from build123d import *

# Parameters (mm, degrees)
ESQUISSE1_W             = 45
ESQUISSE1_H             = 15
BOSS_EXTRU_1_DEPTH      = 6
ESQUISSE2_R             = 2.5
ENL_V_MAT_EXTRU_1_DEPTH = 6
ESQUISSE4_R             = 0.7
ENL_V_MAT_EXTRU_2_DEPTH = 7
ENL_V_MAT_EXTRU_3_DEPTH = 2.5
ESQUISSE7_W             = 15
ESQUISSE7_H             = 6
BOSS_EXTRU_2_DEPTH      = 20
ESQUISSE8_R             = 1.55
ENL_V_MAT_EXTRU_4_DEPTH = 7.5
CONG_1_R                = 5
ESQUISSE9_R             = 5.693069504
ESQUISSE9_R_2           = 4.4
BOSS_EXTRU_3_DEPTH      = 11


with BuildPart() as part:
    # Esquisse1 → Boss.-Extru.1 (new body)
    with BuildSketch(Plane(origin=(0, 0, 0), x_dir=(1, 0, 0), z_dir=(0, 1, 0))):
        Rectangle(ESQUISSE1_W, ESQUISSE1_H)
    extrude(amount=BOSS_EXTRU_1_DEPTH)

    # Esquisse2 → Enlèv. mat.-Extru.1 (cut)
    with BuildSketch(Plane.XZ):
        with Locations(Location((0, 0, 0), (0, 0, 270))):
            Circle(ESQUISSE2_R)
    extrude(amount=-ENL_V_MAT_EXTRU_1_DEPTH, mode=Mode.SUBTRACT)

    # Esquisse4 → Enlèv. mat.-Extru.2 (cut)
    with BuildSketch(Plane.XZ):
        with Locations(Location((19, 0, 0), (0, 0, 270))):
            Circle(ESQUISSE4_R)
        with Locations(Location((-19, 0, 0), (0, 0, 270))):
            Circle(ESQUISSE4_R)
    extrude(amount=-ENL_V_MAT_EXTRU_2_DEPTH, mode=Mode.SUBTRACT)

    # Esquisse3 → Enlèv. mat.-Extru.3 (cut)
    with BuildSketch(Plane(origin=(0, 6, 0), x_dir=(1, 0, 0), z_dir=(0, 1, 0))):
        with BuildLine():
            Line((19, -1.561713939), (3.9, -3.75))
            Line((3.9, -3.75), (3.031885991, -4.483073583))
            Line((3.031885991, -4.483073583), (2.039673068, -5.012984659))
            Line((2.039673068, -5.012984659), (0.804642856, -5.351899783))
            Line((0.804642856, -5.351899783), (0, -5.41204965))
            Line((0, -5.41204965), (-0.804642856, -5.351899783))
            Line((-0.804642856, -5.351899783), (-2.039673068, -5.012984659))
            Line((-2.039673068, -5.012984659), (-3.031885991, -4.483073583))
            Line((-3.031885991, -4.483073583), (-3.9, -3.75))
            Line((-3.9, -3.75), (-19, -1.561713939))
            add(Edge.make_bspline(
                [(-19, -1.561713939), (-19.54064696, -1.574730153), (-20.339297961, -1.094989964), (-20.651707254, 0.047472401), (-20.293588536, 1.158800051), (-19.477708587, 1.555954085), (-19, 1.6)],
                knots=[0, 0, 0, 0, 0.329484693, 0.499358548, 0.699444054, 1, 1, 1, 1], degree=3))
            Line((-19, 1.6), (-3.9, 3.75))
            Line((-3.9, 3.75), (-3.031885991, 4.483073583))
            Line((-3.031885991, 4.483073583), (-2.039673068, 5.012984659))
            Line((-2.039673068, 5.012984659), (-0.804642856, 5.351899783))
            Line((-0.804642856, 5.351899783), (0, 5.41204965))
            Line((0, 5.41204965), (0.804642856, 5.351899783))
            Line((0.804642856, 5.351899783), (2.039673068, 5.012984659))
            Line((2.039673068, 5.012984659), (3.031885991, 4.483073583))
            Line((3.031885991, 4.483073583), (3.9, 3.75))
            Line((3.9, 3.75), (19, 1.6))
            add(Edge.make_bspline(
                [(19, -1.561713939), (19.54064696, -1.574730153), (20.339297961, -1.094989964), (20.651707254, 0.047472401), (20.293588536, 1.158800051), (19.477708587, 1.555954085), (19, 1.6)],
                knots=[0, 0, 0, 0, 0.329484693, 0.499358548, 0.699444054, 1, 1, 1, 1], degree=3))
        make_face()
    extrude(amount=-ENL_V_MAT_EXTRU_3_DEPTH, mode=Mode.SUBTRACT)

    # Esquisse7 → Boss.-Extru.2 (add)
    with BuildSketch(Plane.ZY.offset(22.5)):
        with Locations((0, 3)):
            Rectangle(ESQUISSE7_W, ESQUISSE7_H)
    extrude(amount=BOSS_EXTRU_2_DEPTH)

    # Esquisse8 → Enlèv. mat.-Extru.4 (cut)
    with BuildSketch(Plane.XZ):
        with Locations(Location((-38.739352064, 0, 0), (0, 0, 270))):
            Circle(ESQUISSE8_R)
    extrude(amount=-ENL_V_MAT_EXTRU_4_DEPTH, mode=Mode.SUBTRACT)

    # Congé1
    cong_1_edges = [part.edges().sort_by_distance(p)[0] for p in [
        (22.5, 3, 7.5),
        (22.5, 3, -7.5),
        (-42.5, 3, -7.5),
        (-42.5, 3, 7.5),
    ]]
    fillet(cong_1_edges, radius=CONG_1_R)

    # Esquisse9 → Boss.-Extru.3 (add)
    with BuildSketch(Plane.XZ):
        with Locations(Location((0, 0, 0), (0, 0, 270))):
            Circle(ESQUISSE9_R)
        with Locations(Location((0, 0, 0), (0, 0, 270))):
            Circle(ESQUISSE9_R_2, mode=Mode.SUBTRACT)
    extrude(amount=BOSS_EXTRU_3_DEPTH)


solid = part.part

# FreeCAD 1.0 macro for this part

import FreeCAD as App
import Part
import Sketcher
Q = App.Units.Quantity


def edges_at(feature, points):
    """Names of the edges that pass closest to the given points."""
    edges = feature.Shape.Edges
    near = lambda p: min(range(len(edges)), key=lambda i: edges[i].distToShape(Part.Vertex(*p))[0])
    return sorted({f"Edge{near(p) + 1}" for p in points})

doc = App.newDocument("Part")
params = doc.addObject("Spreadsheet::Sheet", "Params")
for row, (alias, value) in enumerate([
    ("sketch1_width", "45 mm"),
    ("sketch1_height", "15 mm"),
    ("pad1_length", "6 mm"),
    ("sketch2_diameter", "5 mm"),
    ("pocket1_length", "6 mm"),
    ("sketch3_diameter", "1.4 mm"),
    ("pocket2_length", "7 mm"),
    ("pocket3_length", "2.5 mm"),
    ("sketch5_width", "6 mm"),
    ("sketch5_height", "15 mm"),
    ("pad2_length", "20 mm"),
    ("sketch6_diameter", "3.1 mm"),
    ("pocket4_length", "7.5 mm"),
    ("fillet_radius", "5 mm"),
    ("sketch7_diameter", "8.8 mm"),
    ("pad3_length", "11 mm"),
], start=1):
    params.set(f"A{row}", alias)
    params.set(f"B{row}", "=" + value)
    params.setAlias(f"B{row}", alias)

body = doc.addObject("PartDesign::Body", "Body")

sketch1 = body.newObject("Sketcher::SketchObject", "Sketch")
sketch1.AttachmentSupport = (doc.getObject("XZ_Plane"), [""])
sketch1.MapMode = "FlatFace"
sketch1.addGeometry(Part.LineSegment(App.Vector(-22, -8, 0), App.Vector(-22, 8, 0)), False)
sketch1.addGeometry(Part.LineSegment(App.Vector(-22, 8, 0), App.Vector(22, 8, 0)), False)
sketch1.addGeometry(Part.LineSegment(App.Vector(22, 8, 0), App.Vector(22, -8, 0)), False)
sketch1.addGeometry(Part.LineSegment(App.Vector(22, -8, 0), App.Vector(-22, -8, 0)), False)
sketch1.addConstraint(Sketcher.Constraint("Coincident", 0, 2, 1, 1))
sketch1.addConstraint(Sketcher.Constraint("Coincident", 1, 2, 2, 1))
sketch1.addConstraint(Sketcher.Constraint("Coincident", 2, 2, 3, 1))
sketch1.addConstraint(Sketcher.Constraint("Coincident", 3, 2, 0, 1))
sketch1.addConstraint(Sketcher.Constraint("Vertical", 0))
sketch1.addConstraint(Sketcher.Constraint("Horizontal", 1))
sketch1.addConstraint(Sketcher.Constraint("Vertical", 2))
sketch1.addConstraint(Sketcher.Constraint("Horizontal", 3))
sketch1.addConstraint(Sketcher.Constraint("Symmetric", 0, 2, 2, 2, -1, 1))
sketch1.addConstraint(Sketcher.Constraint("DistanceX", 1, 1, 1, 2, Q("45 mm")))
sketch1.addConstraint(Sketcher.Constraint("DistanceY", 0, 1, 0, 2, Q("15 mm")))
sketch1.setExpression("Constraints[9]", "Params.sketch1_width")
sketch1.setExpression("Constraints[10]", "Params.sketch1_height")
pad1 = body.newObject("PartDesign::Pad", "Pad")
pad1.Profile = sketch1
pad1.setExpression("Length", "Params.pad1_length")
pad1.Reversed = True

sketch2 = body.newObject("Sketcher::SketchObject", "Sketch001")
sketch2.AttachmentSupport = (doc.getObject("XZ_Plane"), [""])
sketch2.MapMode = "FlatFace"
sketch2.addGeometry(Part.Circle(App.Vector(0, 0, 0), App.Vector(0, 0, 1), 2.5), False)
sketch2.addConstraint(Sketcher.Constraint("Coincident", 0, 3, -1, 1))
sketch2.addConstraint(Sketcher.Constraint("Diameter", 0, Q("5 mm")))
sketch2.setExpression("Constraints[1]", "Params.sketch2_diameter")
pocket1 = body.newObject("PartDesign::Pocket", "Pocket")
pocket1.Profile = sketch2
pocket1.setExpression("Length", "Params.pocket1_length")

sketch3 = body.newObject("Sketcher::SketchObject", "Sketch002")
sketch3.AttachmentSupport = (doc.getObject("XZ_Plane"), [""])
sketch3.MapMode = "FlatFace"
sketch3.addGeometry(Part.Circle(App.Vector(19, 0, 0), App.Vector(0, 0, 1), 0.7), False)
sketch3.addGeometry(Part.Circle(App.Vector(-19, 0, 0), App.Vector(0, 0, 1), 0.7), False)
sketch3.addConstraint(Sketcher.Constraint("Equal", 0, 1))
sketch3.addConstraint(Sketcher.Constraint("Symmetric", 0, 3, 1, 3, -1, 1))
sketch3.addConstraint(Sketcher.Constraint("PointOnObject", 0, 3, -1))
sketch3.addConstraint(Sketcher.Constraint("Diameter", 0, Q("1.4 mm")))
sketch3.addConstraint(Sketcher.Constraint("DistanceX", -1, 1, 0, 3, Q("19 mm")))
sketch3.setExpression("Constraints[3]", "Params.sketch3_diameter")
pocket2 = body.newObject("PartDesign::Pocket", "Pocket001")
pocket2.Profile = sketch3
pocket2.setExpression("Length", "Params.pocket2_length")

sketch4 = body.newObject("Sketcher::SketchObject", "Sketch003")
sketch4.AttachmentSupport = (doc.getObject("XZ_Plane"), [""])
sketch4.MapMode = "FlatFace"
sketch4.AttachmentOffset = App.Placement(App.Vector(0, 0, -6), App.Rotation())
sketch4.addGeometry(Part.LineSegment(App.Vector(3.9, 3.75, 0), App.Vector(19, 1.561714, 0)), False)
sketch4.addGeometry(Part.BSplineCurve([App.Vector(19, 1.561714, 0), App.Vector(19.540647, 1.57473, 0), App.Vector(20.339298, 1.09499, 0), App.Vector(20.651707, -0.047472, 0), App.Vector(20.293589, -1.1588, 0), App.Vector(19.477709, -1.555954, 0), App.Vector(19, -1.6, 0)], [4, 1, 1, 1, 4], [0, 0.329484693, 0.499358548, 0.699444054, 1], False, 3, [1, 1, 1, 1, 1, 1, 1], False), False)
sketch4.addGeometry(Part.LineSegment(App.Vector(19, -1.6, 0), App.Vector(3.9, -3.75, 0)), False)
sketch4.addGeometry(Part.LineSegment(App.Vector(3.9, -3.75, 0), App.Vector(3.031886, -4.483074, 0)), False)
sketch4.addGeometry(Part.LineSegment(App.Vector(3.031886, -4.483074, 0), App.Vector(2.039673, -5.012985, 0)), False)
sketch4.addGeometry(Part.LineSegment(App.Vector(2.039673, -5.012985, 0), App.Vector(0.804643, -5.3519, 0)), False)
sketch4.addGeometry(Part.LineSegment(App.Vector(0.804643, -5.3519, 0), App.Vector(0, -5.41205, 0)), False)
sketch4.addGeometry(Part.LineSegment(App.Vector(0, -5.41205, 0), App.Vector(-0.804643, -5.3519, 0)), False)
sketch4.addGeometry(Part.LineSegment(App.Vector(-0.804643, -5.3519, 0), App.Vector(-2.039673, -5.012985, 0)), False)
sketch4.addGeometry(Part.LineSegment(App.Vector(-2.039673, -5.012985, 0), App.Vector(-3.031886, -4.483074, 0)), False)
sketch4.addGeometry(Part.LineSegment(App.Vector(-3.031886, -4.483074, 0), App.Vector(-3.9, -3.75, 0)), False)
sketch4.addGeometry(Part.LineSegment(App.Vector(-3.9, -3.75, 0), App.Vector(-19, -1.6, 0)), False)
sketch4.addGeometry(Part.BSplineCurve([App.Vector(-19, 1.561714, 0), App.Vector(-19.540647, 1.57473, 0), App.Vector(-20.339298, 1.09499, 0), App.Vector(-20.651707, -0.047472, 0), App.Vector(-20.293589, -1.1588, 0), App.Vector(-19.477709, -1.555954, 0), App.Vector(-19, -1.6, 0)], [4, 1, 1, 1, 4], [0, 0.329484693, 0.499358548, 0.699444054, 1], False, 3, [1, 1, 1, 1, 1, 1, 1], False), False)
sketch4.addGeometry(Part.LineSegment(App.Vector(-19, 1.561714, 0), App.Vector(-3.9, 3.75, 0)), False)
sketch4.addGeometry(Part.LineSegment(App.Vector(-3.9, 3.75, 0), App.Vector(-3.031886, 4.483074, 0)), False)
sketch4.addGeometry(Part.LineSegment(App.Vector(-3.031886, 4.483074, 0), App.Vector(-2.039673, 5.012985, 0)), False)
sketch4.addGeometry(Part.LineSegment(App.Vector(-2.039673, 5.012985, 0), App.Vector(-0.804643, 5.3519, 0)), False)
sketch4.addGeometry(Part.LineSegment(App.Vector(-0.804643, 5.3519, 0), App.Vector(0, 5.41205, 0)), False)
sketch4.addGeometry(Part.LineSegment(App.Vector(0, 5.41205, 0), App.Vector(0.804643, 5.3519, 0)), False)
sketch4.addGeometry(Part.LineSegment(App.Vector(0.804643, 5.3519, 0), App.Vector(2.039673, 5.012985, 0)), False)
sketch4.addGeometry(Part.LineSegment(App.Vector(2.039673, 5.012985, 0), App.Vector(3.031886, 4.483074, 0)), False)
sketch4.addGeometry(Part.LineSegment(App.Vector(3.031886, 4.483074, 0), App.Vector(3.9, 3.75, 0)), False)
sketch4.addConstraint(Sketcher.Constraint("Block", 1))
sketch4.addConstraint(Sketcher.Constraint("Block", 12))
sketch4.addConstraint(Sketcher.Constraint("Coincident", 0, 2, 1, 1))
sketch4.addConstraint(Sketcher.Constraint("Coincident", 1, 2, 2, 1))
sketch4.addConstraint(Sketcher.Constraint("Coincident", 2, 2, 3, 1))
sketch4.addConstraint(Sketcher.Constraint("Coincident", 3, 2, 4, 1))
sketch4.addConstraint(Sketcher.Constraint("Coincident", 4, 2, 5, 1))
sketch4.addConstraint(Sketcher.Constraint("Coincident", 5, 2, 6, 1))
sketch4.addConstraint(Sketcher.Constraint("Coincident", 6, 2, 7, 1))
sketch4.addConstraint(Sketcher.Constraint("Coincident", 7, 2, 8, 1))
sketch4.addConstraint(Sketcher.Constraint("Coincident", 8, 2, 9, 1))
sketch4.addConstraint(Sketcher.Constraint("Coincident", 9, 2, 10, 1))
sketch4.addConstraint(Sketcher.Constraint("Coincident", 10, 2, 11, 1))
sketch4.addConstraint(Sketcher.Constraint("Coincident", 11, 2, 12, 2))
sketch4.addConstraint(Sketcher.Constraint("Coincident", 12, 1, 13, 1))
sketch4.addConstraint(Sketcher.Constraint("Coincident", 13, 2, 14, 1))
sketch4.addConstraint(Sketcher.Constraint("Coincident", 14, 2, 15, 1))
sketch4.addConstraint(Sketcher.Constraint("Coincident", 15, 2, 16, 1))
sketch4.addConstraint(Sketcher.Constraint("Coincident", 16, 2, 17, 1))
sketch4.addConstraint(Sketcher.Constraint("Coincident", 17, 2, 18, 1))
sketch4.addConstraint(Sketcher.Constraint("Coincident", 18, 2, 19, 1))
sketch4.addConstraint(Sketcher.Constraint("Coincident", 19, 2, 20, 1))
sketch4.addConstraint(Sketcher.Constraint("Coincident", 20, 2, 21, 1))
sketch4.addConstraint(Sketcher.Constraint("Coincident", 21, 2, 0, 1))
sketch4.addConstraint(Sketcher.Constraint("Symmetric", 2, 2, 13, 2, -1, 1))
sketch4.addConstraint(Sketcher.Constraint("Symmetric", 3, 2, 14, 2, -1, 1))
sketch4.addConstraint(Sketcher.Constraint("Symmetric", 4, 2, 15, 2, -1, 1))
sketch4.addConstraint(Sketcher.Constraint("Symmetric", 5, 2, 16, 2, -1, 1))
sketch4.addConstraint(Sketcher.Constraint("Symmetric", 6, 2, 17, 2, -1, 1))
sketch4.addConstraint(Sketcher.Constraint("Symmetric", 7, 2, 18, 2, -1, 1))
sketch4.addConstraint(Sketcher.Constraint("Symmetric", 8, 2, 19, 2, -1, 1))
sketch4.addConstraint(Sketcher.Constraint("Symmetric", 9, 2, 20, 2, -1, 1))
sketch4.addConstraint(Sketcher.Constraint("Symmetric", 10, 2, 21, 2, -1, 1))
sketch4.addConstraint(Sketcher.Constraint("Symmetric", 5, 2, 7, 2, -2))
sketch4.addConstraint(Sketcher.Constraint("Symmetric", 4, 2, 8, 2, -2))
sketch4.addConstraint(Sketcher.Constraint("Symmetric", 3, 2, 9, 2, -2))
sketch4.addConstraint(Sketcher.Constraint("Symmetric", 2, 2, 10, 2, -2))
sketch4.addConstraint(Sketcher.Constraint("PointOnObject", 6, 2, -2))
sketch4.addConstraint(Sketcher.Constraint("DistanceX", -1, 1, 2, 2, Q("3.9 mm")))
sketch4.addConstraint(Sketcher.Constraint("DistanceY", 10, 2, 13, 2, Q("7.5 mm")))
sketch4.addConstraint(Sketcher.Constraint("DistanceY", 5, 2, -1, 1, Q("5.3519 mm")))
sketch4.addConstraint(Sketcher.Constraint("DistanceY", 4, 2, 0, 2, Q("6.574699 mm")))
sketch4.addConstraint(Sketcher.Constraint("Distance", 3, Q("1.13623 mm")))
sketch4.addConstraint(Sketcher.Constraint("Distance", 5, Q("1.280689 mm")))
sketch4.addConstraint(Sketcher.Constraint("DistanceY", 6, 2, -1, 1, Q("5.41205 mm")))
sketch4.addConstraint(Sketcher.Constraint("DistanceY", 4, 2, 3, 2, Q("0.529911 mm")))
sketch4.addConstraint(Sketcher.Constraint("DistanceX", 7, 2, 3, 2, Q("3.836529 mm")))
pocket3 = body.newObject("PartDesign::Pocket", "Pocket002")
pocket3.Profile = sketch4
pocket3.setExpression("Length", "Params.pocket3_length")
pocket3.Reversed = True

sketch5 = body.newObject("Sketcher::SketchObject", "Sketch004")
sketch5.AttachmentSupport = (doc.getObject("YZ_Plane"), [""])
sketch5.MapMode = "FlatFace"
sketch5.AttachmentOffset = App.Placement(App.Vector(0, 0, -22.5), App.Rotation())
sketch5.addGeometry(Part.LineSegment(App.Vector(6, -8, 0), App.Vector(0, -8, 0)), False)
sketch5.addGeometry(Part.LineSegment(App.Vector(0, -8, 0), App.Vector(0, 8, 0)), False)
sketch5.addGeometry(Part.LineSegment(App.Vector(0, 8, 0), App.Vector(6, 8, 0)), False)
sketch5.addGeometry(Part.LineSegment(App.Vector(6, 8, 0), App.Vector(6, -8, 0)), False)
sketch5.addConstraint(Sketcher.Constraint("Coincident", 0, 2, 1, 1))
sketch5.addConstraint(Sketcher.Constraint("Coincident", 1, 2, 2, 1))
sketch5.addConstraint(Sketcher.Constraint("Coincident", 2, 2, 3, 1))
sketch5.addConstraint(Sketcher.Constraint("Coincident", 3, 2, 0, 1))
sketch5.addConstraint(Sketcher.Constraint("Horizontal", 0))
sketch5.addConstraint(Sketcher.Constraint("Vertical", 1))
sketch5.addConstraint(Sketcher.Constraint("Horizontal", 2))
sketch5.addConstraint(Sketcher.Constraint("Vertical", 3))
sketch5.addConstraint(Sketcher.Constraint("Symmetric", 0, 2, 1, 2, -1, 1))
sketch5.addConstraint(Sketcher.Constraint("DistanceX", 0, 2, 0, 1, Q("6 mm")))
sketch5.addConstraint(Sketcher.Constraint("DistanceY", 1, 1, 1, 2, Q("15 mm")))
sketch5.setExpression("Constraints[9]", "Params.sketch5_width")
sketch5.setExpression("Constraints[10]", "Params.sketch5_height")
pad2 = body.newObject("PartDesign::Pad", "Pad001")
pad2.Profile = sketch5
pad2.setExpression("Length", "Params.pad2_length")
pad2.Reversed = True

sketch6 = body.newObject("Sketcher::SketchObject", "Sketch005")
sketch6.AttachmentSupport = (doc.getObject("XZ_Plane"), [""])
sketch6.MapMode = "FlatFace"
sketch6.addGeometry(Part.Circle(App.Vector(-38.7, 0, 0), App.Vector(0, 0, 1), 1.6), False)
sketch6.addConstraint(Sketcher.Constraint("PointOnObject", 0, 3, -1))
sketch6.addConstraint(Sketcher.Constraint("Diameter", 0, Q("3.1 mm")))
sketch6.addConstraint(Sketcher.Constraint("DistanceX", 0, 3, -1, 1, Q("38.739352 mm")))
sketch6.setExpression("Constraints[1]", "Params.sketch6_diameter")
pocket4 = body.newObject("PartDesign::Pocket", "Pocket003")
pocket4.Profile = sketch6
pocket4.setExpression("Length", "Params.pocket4_length")
doc.recompute()

fillet = body.newObject("PartDesign::Fillet", "Fillet")
fillet.Base = (pocket4, edges_at(pocket4, [
    (22.5, 3, 7.5),
    (22.5, 3, -7.5),
    (-42.5, 3, -7.5),
    (-42.5, 3, 7.5),
]))
fillet.setExpression("Radius", "Params.fillet_radius")

sketch7 = body.newObject("Sketcher::SketchObject", "Sketch006")
sketch7.AttachmentSupport = (doc.getObject("XZ_Plane"), [""])
sketch7.MapMode = "FlatFace"
sketch7.addGeometry(Part.Circle(App.Vector(0, 0, 0), App.Vector(0, 0, 1), 5.7), False)
sketch7.addGeometry(Part.Circle(App.Vector(0, 0, 0), App.Vector(0, 0, 1), 4.4), False)
sketch7.addConstraint(Sketcher.Constraint("Coincident", 0, 3, -1, 1))
sketch7.addConstraint(Sketcher.Constraint("Coincident", 1, 3, -1, 1))
sketch7.addConstraint(Sketcher.Constraint("Diameter", 1, Q("8.8 mm")))
sketch7.addConstraint(Sketcher.Constraint("Diameter", 0, Q("11.386139 mm")))
sketch7.setExpression("Constraints[2]", "Params.sketch7_diameter")
pad3 = body.newObject("PartDesign::Pad", "Pad002")
pad3.Profile = sketch7
pad3.setExpression("Length", "Params.pad3_length")

doc.recompute()
